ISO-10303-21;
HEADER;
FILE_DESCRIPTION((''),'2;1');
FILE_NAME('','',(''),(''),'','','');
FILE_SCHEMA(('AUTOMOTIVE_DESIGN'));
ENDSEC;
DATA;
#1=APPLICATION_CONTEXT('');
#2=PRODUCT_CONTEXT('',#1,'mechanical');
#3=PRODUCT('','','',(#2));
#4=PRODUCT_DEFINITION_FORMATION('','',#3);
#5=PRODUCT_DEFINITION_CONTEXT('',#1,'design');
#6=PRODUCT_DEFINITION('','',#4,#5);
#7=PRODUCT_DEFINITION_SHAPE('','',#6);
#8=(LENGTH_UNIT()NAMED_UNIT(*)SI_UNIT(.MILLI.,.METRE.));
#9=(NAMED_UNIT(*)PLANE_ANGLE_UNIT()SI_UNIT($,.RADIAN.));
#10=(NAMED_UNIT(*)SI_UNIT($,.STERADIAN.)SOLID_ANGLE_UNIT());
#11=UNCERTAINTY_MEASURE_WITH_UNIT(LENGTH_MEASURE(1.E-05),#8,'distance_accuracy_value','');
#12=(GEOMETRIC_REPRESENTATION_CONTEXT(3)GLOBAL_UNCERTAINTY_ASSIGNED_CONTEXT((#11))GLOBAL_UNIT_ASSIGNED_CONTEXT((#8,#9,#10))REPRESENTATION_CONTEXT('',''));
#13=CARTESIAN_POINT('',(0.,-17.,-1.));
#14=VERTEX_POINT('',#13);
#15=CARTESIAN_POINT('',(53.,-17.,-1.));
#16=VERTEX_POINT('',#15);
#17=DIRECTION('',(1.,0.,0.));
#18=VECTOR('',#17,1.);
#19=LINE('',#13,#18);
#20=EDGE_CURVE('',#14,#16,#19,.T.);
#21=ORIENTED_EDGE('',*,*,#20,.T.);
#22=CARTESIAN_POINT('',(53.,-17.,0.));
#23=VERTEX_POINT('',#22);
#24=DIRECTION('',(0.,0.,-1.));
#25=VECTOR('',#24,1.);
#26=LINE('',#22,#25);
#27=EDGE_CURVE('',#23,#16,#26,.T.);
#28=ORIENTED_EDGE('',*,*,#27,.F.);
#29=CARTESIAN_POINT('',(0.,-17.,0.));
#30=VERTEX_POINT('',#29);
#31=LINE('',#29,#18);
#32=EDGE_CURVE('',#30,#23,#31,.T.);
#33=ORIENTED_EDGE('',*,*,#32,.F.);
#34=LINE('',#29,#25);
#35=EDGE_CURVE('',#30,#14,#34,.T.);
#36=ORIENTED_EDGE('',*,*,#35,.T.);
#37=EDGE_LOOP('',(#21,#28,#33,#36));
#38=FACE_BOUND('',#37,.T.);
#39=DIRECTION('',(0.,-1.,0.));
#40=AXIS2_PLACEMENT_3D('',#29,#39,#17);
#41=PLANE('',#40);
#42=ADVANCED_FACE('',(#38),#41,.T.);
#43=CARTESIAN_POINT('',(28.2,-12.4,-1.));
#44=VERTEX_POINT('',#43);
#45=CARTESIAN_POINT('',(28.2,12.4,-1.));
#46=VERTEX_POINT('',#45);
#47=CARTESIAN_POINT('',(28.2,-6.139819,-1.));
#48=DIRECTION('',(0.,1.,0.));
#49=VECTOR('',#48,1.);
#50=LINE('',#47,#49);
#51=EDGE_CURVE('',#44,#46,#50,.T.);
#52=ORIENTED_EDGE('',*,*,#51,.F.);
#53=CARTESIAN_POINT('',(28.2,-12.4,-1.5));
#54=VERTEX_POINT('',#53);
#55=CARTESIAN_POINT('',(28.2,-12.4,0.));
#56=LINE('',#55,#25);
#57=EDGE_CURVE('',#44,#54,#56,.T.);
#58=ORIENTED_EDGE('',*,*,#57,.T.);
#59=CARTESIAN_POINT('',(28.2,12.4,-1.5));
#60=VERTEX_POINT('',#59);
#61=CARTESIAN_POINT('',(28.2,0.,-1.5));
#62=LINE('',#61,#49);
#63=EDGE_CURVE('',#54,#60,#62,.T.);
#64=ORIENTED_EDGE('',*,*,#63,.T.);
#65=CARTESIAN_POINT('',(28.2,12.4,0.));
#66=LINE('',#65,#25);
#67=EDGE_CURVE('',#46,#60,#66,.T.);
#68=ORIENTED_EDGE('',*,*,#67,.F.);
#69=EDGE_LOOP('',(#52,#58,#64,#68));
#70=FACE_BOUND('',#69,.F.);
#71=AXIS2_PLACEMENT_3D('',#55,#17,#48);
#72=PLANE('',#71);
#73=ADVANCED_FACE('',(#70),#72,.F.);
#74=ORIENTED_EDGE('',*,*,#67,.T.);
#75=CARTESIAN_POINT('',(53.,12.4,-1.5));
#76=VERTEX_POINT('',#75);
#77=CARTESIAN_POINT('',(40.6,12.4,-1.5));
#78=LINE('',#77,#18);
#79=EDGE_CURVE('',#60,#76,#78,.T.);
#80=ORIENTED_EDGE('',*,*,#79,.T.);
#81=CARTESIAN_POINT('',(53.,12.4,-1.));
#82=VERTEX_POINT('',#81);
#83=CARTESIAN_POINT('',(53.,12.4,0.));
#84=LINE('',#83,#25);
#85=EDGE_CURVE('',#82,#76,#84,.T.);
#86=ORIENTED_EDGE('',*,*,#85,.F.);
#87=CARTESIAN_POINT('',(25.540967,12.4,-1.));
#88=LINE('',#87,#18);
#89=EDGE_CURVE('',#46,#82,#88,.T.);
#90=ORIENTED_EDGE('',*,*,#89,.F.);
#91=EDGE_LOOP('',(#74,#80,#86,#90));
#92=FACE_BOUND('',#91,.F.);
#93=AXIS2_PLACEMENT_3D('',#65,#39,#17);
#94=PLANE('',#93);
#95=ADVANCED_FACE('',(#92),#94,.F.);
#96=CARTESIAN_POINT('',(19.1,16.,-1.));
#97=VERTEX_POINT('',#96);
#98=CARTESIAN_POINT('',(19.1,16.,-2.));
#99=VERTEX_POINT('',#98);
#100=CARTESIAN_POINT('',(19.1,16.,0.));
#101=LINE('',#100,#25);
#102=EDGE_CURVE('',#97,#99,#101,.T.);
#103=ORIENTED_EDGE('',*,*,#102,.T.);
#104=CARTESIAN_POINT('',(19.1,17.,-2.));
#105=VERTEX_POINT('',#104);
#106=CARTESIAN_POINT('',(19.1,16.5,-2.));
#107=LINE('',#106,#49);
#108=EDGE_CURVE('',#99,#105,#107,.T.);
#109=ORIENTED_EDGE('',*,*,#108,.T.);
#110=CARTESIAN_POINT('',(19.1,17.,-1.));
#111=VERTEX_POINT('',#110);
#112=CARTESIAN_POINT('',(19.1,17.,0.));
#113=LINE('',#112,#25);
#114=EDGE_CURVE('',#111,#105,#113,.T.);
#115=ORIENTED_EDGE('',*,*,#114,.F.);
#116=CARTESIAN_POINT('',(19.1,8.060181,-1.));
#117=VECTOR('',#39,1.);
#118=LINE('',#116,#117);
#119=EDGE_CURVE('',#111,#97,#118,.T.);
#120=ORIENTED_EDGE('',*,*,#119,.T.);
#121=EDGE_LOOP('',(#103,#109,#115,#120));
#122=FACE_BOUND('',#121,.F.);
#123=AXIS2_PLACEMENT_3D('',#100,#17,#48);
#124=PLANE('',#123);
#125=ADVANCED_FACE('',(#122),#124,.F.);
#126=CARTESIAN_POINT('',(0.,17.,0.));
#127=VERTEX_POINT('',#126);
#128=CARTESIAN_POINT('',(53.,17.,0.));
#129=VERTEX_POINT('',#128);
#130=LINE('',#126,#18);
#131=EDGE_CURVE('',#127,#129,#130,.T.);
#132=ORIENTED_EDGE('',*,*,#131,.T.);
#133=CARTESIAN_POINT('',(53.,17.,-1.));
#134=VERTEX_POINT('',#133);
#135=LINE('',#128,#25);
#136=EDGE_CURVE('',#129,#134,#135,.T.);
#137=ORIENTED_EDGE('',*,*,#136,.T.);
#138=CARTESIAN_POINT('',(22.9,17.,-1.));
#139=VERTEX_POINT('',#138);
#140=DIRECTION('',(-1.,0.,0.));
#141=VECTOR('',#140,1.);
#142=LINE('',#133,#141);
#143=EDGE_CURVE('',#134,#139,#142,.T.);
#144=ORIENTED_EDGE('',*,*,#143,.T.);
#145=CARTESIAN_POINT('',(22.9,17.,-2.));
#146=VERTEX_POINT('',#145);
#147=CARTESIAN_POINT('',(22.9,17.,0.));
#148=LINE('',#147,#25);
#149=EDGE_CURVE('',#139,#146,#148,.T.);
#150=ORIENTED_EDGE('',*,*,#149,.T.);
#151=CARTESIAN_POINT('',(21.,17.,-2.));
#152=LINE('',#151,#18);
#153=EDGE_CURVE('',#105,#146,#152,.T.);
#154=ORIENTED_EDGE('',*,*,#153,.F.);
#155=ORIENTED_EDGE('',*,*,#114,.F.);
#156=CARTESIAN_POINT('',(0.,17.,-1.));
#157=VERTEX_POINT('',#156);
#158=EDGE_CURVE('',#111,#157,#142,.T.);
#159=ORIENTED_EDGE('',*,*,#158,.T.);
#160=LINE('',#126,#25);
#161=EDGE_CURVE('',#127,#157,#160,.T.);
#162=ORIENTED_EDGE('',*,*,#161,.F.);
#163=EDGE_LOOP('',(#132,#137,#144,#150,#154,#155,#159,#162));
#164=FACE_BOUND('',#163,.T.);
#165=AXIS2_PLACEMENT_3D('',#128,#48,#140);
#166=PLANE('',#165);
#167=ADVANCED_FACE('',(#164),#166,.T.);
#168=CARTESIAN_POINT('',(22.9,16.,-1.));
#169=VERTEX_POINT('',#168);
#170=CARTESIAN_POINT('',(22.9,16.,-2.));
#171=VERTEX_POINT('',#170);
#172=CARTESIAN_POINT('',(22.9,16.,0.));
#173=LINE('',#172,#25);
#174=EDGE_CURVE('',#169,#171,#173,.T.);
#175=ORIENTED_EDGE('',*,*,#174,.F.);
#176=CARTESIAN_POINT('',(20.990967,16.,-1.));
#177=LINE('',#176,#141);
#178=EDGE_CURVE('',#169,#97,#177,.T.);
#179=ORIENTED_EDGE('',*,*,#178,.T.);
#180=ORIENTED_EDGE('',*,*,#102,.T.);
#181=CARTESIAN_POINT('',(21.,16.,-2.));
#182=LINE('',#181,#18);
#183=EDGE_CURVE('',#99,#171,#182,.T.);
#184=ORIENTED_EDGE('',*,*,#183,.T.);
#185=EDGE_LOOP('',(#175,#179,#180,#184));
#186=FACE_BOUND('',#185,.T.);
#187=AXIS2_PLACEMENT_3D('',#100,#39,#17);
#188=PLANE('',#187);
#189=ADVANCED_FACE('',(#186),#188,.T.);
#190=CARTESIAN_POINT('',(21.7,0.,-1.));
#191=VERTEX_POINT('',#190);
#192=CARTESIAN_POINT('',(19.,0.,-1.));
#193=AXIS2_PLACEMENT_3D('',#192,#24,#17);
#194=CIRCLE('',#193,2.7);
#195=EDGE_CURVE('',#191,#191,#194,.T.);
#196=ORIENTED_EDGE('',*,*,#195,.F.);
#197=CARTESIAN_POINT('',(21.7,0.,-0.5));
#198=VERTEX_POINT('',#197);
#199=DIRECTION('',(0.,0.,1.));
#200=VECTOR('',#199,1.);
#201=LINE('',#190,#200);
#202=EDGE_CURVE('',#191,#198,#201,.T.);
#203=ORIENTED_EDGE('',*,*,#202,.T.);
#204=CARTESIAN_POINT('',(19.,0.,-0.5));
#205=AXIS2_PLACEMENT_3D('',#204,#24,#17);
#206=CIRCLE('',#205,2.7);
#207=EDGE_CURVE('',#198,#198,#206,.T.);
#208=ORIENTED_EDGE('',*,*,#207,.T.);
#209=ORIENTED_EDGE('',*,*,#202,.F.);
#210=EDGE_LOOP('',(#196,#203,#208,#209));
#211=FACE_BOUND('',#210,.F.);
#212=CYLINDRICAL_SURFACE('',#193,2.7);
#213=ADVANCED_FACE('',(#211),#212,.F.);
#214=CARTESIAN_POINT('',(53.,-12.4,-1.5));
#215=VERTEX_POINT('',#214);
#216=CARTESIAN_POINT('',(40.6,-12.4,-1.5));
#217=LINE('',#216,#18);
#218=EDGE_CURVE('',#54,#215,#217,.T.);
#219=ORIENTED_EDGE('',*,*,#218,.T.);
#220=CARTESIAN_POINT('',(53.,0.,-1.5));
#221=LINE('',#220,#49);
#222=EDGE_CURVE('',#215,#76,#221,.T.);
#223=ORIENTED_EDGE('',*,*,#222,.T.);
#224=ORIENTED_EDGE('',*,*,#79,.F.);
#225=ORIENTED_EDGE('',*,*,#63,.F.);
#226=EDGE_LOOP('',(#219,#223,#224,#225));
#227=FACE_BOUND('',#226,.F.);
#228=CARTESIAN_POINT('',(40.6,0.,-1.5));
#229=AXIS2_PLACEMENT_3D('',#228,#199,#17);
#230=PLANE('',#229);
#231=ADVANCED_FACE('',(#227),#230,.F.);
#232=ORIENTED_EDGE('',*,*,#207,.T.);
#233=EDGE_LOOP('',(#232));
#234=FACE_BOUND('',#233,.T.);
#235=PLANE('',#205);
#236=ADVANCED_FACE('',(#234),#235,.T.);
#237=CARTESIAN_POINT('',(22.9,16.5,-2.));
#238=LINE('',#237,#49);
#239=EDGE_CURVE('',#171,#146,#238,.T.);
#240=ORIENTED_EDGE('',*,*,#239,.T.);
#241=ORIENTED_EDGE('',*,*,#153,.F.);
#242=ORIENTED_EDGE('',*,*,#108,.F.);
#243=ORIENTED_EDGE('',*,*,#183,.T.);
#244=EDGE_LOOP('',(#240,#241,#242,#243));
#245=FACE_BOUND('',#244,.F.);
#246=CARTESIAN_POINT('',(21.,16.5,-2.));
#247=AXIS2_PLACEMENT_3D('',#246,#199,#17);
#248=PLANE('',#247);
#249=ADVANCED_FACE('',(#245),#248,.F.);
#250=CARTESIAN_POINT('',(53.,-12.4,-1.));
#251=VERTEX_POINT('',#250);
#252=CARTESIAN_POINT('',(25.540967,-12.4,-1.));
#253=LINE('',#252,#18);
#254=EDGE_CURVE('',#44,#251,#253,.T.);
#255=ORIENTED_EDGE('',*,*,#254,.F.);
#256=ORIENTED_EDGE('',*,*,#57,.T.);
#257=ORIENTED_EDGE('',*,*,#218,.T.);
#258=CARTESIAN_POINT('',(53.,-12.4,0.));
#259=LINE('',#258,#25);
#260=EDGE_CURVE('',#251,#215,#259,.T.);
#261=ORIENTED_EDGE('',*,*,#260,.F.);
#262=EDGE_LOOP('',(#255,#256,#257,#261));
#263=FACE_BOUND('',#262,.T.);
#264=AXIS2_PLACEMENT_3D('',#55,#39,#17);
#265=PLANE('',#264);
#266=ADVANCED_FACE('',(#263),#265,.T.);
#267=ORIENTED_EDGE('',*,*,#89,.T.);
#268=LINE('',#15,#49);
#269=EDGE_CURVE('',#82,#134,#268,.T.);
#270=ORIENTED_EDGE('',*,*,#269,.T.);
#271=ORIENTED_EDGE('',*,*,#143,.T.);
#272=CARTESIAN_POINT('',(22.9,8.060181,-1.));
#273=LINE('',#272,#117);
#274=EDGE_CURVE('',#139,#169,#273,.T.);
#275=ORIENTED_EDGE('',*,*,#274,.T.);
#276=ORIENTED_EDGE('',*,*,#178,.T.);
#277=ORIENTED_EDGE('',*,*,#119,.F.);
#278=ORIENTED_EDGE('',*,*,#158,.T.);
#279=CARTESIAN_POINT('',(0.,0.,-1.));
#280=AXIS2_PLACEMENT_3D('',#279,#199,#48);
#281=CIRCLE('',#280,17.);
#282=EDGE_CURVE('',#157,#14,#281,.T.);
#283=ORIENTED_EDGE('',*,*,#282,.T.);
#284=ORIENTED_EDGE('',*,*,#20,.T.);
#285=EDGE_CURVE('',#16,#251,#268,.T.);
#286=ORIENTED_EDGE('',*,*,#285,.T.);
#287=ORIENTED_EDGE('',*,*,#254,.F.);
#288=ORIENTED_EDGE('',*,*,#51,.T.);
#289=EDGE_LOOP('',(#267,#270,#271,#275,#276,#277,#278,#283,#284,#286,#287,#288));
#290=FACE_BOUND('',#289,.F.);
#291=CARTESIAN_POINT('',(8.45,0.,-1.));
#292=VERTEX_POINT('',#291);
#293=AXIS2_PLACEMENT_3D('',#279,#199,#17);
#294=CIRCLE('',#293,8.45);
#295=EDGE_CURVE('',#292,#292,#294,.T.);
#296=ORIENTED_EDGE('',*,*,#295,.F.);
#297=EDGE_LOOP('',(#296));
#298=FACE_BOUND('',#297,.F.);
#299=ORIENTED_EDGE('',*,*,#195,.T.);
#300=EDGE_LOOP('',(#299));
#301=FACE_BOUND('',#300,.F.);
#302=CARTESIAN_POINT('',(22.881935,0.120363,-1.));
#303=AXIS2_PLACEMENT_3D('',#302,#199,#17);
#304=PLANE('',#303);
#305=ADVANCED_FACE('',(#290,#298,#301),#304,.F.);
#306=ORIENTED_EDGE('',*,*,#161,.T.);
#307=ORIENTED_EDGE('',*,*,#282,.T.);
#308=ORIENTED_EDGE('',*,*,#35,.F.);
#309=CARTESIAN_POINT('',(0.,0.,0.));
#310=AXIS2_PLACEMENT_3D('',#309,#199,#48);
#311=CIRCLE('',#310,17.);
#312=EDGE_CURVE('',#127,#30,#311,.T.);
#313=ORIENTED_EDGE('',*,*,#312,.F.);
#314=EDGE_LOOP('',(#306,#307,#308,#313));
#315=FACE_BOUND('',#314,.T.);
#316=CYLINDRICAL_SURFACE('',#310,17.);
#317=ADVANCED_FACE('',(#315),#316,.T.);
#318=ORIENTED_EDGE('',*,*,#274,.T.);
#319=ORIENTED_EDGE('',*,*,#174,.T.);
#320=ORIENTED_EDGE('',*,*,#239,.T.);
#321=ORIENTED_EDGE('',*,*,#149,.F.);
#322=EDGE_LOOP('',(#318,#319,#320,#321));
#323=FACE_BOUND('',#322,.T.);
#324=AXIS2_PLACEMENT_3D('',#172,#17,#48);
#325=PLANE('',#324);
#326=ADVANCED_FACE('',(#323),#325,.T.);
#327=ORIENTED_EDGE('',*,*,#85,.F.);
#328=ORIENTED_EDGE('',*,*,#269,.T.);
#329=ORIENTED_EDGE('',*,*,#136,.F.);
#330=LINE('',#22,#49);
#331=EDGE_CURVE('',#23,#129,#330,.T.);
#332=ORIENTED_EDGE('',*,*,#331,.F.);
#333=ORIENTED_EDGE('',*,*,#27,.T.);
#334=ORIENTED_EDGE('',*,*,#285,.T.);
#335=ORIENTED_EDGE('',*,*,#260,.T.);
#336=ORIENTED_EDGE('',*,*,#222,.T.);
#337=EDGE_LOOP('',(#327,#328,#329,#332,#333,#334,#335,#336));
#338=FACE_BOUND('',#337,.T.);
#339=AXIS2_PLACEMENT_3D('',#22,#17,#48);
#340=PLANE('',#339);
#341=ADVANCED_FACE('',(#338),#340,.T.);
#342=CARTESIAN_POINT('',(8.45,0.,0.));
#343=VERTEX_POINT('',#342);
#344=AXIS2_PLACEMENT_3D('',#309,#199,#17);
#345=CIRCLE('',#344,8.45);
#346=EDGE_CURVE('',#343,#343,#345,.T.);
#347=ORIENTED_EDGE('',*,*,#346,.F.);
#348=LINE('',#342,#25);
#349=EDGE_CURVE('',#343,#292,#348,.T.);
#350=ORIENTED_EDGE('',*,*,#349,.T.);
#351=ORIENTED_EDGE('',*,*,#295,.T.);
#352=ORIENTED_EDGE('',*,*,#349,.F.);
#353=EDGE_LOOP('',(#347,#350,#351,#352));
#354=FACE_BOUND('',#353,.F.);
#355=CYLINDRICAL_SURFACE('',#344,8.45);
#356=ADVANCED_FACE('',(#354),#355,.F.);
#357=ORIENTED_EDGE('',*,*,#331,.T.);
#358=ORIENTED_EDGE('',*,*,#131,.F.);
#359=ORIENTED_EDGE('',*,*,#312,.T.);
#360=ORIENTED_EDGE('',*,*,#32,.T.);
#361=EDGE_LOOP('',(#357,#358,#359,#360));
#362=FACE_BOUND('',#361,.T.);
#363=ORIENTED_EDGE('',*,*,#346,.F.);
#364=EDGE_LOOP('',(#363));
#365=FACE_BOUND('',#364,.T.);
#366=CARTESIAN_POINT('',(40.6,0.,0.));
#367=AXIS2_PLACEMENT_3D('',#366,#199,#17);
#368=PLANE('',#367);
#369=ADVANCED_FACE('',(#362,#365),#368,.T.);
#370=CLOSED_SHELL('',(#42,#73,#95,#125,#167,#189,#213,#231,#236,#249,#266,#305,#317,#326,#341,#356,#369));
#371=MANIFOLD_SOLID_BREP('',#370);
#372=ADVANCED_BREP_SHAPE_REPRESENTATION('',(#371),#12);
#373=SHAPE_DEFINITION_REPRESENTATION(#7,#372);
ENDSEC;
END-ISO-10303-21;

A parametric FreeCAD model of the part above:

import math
import FreeCAD as App
import Part
import Sketcher

doc = App.newDocument("Part")
body = doc.addObject("PartDesign::Body", "Body")

# Sketch on XY plane
sketch1 = body.newObject("Sketcher::SketchObject", "Sketch")
sketch1.AttachmentSupport = (doc.getObject("XY_Plane"), [""])
sketch1.MapMode = "FlatFace"
sketch1.addGeometry([
    Part.LineSegment(App.Vector(19.1, 17, 0), App.Vector(19.1, 16, 0)),
    Part.LineSegment(App.Vector(19.1, 16, 0), App.Vector(22.9, 16, 0)),
    Part.LineSegment(App.Vector(22.9, 16, 0), App.Vector(22.9, 17, 0)),
    Part.LineSegment(App.Vector(22.9, 17, 0), App.Vector(19.1, 17, 0)),
], False)
sketch1.addConstraint([
    Sketcher.Constraint("Coincident", 0, 2, 1, 1),
    Sketcher.Constraint("Coincident", 1, 2, 2, 1),
    Sketcher.Constraint("Coincident", 2, 2, 3, 1),
    Sketcher.Constraint("Coincident", 3, 2, 0, 1),
    Sketcher.Constraint("Vertical", 0),
    Sketcher.Constraint("Horizontal", 1),
    Sketcher.Constraint("Vertical", 2),
    Sketcher.Constraint("Horizontal", 3),
    Sketcher.Constraint("DistanceY", 0, 2, 0, 1, 1.0),
    Sketcher.Constraint("DistanceX", 1, 1, 1, 2, 3.8),
    Sketcher.Constraint("DistanceY", -1, 1, 0, 2, 16.0),
    Sketcher.Constraint("DistanceX", -1, 1, 0, 2, 19.1),
])
pad1 = body.newObject("PartDesign::Pad", "Pad")
pad1.Profile = sketch1
pad1.Length = 2
pad1.Reversed = True

# Sketch on XY plane
sketch2 = body.newObject("Sketcher::SketchObject", "Sketch001")
sketch2.AttachmentSupport = (doc.getObject("XY_Plane"), [""])
sketch2.MapMode = "FlatFace"
sketch2.addGeometry([
    Part.ArcOfCircle(Part.Circle(App.Vector(0, 0, 0), App.Vector(0, 0, 1), 17), math.radians(90), math.radians(270)),  # 0
    Part.LineSegment(App.Vector(0, -17, 0), App.Vector(53, -17, 0)),  # 1
    Part.LineSegment(App.Vector(53, -17, 0), App.Vector(53, 17, 0)),  # 2
    Part.LineSegment(App.Vector(53, 17, 0), App.Vector(0, 17, 0)),  # 3
    Part.Circle(App.Vector(0, 0, 0), App.Vector(0, 0, 1), 8),  # 4
], False)
sketch2.addConstraint([
    Sketcher.Constraint("Tangent", 0, 2, 1, 1),
    Sketcher.Constraint("Coincident", 1, 2, 2, 1),
    Sketcher.Constraint("Coincident", 2, 2, 3, 1),
    Sketcher.Constraint("Tangent", 3, 2, 0, 1),
    Sketcher.Constraint("Horizontal", 1),
    Sketcher.Constraint("Vertical", 2),
    Sketcher.Constraint("Horizontal", 3),
    Sketcher.Constraint("Coincident", 0, 3, -1, 1),
    Sketcher.Constraint("Coincident", 4, 3, -1, 1),
    Sketcher.Constraint("Radius", 0, 17.0),
    Sketcher.Constraint("Diameter", 4, 16.9),
    Sketcher.Constraint("DistanceX", 1, 1, 1, 2, 53.0),
])
pad2 = body.newObject("PartDesign::Pad", "Pad001")
pad2.Profile = sketch2
pad2.Length = 1
pad2.Reversed = True

# Sketch on XY plane
sketch3 = body.newObject("Sketcher::SketchObject", "Sketch002")
sketch3.AttachmentSupport = (doc.getObject("XY_Plane"), [""])
sketch3.MapMode = "FlatFace"
sketch3.AttachmentOffset = App.Placement(App.Vector(0, 0, -1), App.Rotation())
sketch3.addGeometry(Part.Circle(App.Vector(19, 0, 0), App.Vector(0, 0, 1), 2.7), False)
sketch3.addConstraint([
    Sketcher.Constraint("PointOnObject", 0, 3, -1),
    Sketcher.Constraint("Diameter", 0, 5.4),
    Sketcher.Constraint("DistanceX", -1, 1, 0, 3, 19.0),
])
pocket1 = body.newObject("PartDesign::Pocket", "Pocket")
pocket1.Profile = sketch3
pocket1.Length = 0.5
pocket1.Reversed = True

# Sketch on XY plane
sketch4 = body.newObject("Sketcher::SketchObject", "Sketch003")
sketch4.AttachmentSupport = (doc.getObject("XY_Plane"), [""])
sketch4.MapMode = "FlatFace"
sketch4.addGeometry([
    Part.LineSegment(App.Vector(28, 12, 0), App.Vector(28, -12, 0)),
    Part.LineSegment(App.Vector(28, -12, 0), App.Vector(53, -12, 0)),
    Part.LineSegment(App.Vector(53, -12, 0), App.Vector(53, 12, 0)),
    Part.LineSegment(App.Vector(53, 12, 0), App.Vector(28, 12, 0)),
], False)
sketch4.addConstraint([
    Sketcher.Constraint("Coincident", 0, 2, 1, 1),
    Sketcher.Constraint("Coincident", 1, 2, 2, 1),
    Sketcher.Constraint("Coincident", 2, 2, 3, 1),
    Sketcher.Constraint("Coincident", 3, 2, 0, 1),
    Sketcher.Constraint("Vertical", 0),
    Sketcher.Constraint("Horizontal", 1),
    Sketcher.Constraint("Vertical", 2),
    Sketcher.Constraint("Horizontal", 3),
    Sketcher.Constraint("Equal", 3, 0),
    Sketcher.Constraint("DistanceX", 1, 1, 1, 2, 24.8),
    Sketcher.Constraint("DistanceX", -1, 1, 1, 2, 53.0),
    Sketcher.Constraint("DistanceY", 0, 2, -1, 1, 12.4),
])
pad3 = body.newObject("PartDesign::Pad", "Pad002")
pad3.Profile = sketch4
pad3.Length = 1.5
pad3.Reversed = True

doc.recompute()
